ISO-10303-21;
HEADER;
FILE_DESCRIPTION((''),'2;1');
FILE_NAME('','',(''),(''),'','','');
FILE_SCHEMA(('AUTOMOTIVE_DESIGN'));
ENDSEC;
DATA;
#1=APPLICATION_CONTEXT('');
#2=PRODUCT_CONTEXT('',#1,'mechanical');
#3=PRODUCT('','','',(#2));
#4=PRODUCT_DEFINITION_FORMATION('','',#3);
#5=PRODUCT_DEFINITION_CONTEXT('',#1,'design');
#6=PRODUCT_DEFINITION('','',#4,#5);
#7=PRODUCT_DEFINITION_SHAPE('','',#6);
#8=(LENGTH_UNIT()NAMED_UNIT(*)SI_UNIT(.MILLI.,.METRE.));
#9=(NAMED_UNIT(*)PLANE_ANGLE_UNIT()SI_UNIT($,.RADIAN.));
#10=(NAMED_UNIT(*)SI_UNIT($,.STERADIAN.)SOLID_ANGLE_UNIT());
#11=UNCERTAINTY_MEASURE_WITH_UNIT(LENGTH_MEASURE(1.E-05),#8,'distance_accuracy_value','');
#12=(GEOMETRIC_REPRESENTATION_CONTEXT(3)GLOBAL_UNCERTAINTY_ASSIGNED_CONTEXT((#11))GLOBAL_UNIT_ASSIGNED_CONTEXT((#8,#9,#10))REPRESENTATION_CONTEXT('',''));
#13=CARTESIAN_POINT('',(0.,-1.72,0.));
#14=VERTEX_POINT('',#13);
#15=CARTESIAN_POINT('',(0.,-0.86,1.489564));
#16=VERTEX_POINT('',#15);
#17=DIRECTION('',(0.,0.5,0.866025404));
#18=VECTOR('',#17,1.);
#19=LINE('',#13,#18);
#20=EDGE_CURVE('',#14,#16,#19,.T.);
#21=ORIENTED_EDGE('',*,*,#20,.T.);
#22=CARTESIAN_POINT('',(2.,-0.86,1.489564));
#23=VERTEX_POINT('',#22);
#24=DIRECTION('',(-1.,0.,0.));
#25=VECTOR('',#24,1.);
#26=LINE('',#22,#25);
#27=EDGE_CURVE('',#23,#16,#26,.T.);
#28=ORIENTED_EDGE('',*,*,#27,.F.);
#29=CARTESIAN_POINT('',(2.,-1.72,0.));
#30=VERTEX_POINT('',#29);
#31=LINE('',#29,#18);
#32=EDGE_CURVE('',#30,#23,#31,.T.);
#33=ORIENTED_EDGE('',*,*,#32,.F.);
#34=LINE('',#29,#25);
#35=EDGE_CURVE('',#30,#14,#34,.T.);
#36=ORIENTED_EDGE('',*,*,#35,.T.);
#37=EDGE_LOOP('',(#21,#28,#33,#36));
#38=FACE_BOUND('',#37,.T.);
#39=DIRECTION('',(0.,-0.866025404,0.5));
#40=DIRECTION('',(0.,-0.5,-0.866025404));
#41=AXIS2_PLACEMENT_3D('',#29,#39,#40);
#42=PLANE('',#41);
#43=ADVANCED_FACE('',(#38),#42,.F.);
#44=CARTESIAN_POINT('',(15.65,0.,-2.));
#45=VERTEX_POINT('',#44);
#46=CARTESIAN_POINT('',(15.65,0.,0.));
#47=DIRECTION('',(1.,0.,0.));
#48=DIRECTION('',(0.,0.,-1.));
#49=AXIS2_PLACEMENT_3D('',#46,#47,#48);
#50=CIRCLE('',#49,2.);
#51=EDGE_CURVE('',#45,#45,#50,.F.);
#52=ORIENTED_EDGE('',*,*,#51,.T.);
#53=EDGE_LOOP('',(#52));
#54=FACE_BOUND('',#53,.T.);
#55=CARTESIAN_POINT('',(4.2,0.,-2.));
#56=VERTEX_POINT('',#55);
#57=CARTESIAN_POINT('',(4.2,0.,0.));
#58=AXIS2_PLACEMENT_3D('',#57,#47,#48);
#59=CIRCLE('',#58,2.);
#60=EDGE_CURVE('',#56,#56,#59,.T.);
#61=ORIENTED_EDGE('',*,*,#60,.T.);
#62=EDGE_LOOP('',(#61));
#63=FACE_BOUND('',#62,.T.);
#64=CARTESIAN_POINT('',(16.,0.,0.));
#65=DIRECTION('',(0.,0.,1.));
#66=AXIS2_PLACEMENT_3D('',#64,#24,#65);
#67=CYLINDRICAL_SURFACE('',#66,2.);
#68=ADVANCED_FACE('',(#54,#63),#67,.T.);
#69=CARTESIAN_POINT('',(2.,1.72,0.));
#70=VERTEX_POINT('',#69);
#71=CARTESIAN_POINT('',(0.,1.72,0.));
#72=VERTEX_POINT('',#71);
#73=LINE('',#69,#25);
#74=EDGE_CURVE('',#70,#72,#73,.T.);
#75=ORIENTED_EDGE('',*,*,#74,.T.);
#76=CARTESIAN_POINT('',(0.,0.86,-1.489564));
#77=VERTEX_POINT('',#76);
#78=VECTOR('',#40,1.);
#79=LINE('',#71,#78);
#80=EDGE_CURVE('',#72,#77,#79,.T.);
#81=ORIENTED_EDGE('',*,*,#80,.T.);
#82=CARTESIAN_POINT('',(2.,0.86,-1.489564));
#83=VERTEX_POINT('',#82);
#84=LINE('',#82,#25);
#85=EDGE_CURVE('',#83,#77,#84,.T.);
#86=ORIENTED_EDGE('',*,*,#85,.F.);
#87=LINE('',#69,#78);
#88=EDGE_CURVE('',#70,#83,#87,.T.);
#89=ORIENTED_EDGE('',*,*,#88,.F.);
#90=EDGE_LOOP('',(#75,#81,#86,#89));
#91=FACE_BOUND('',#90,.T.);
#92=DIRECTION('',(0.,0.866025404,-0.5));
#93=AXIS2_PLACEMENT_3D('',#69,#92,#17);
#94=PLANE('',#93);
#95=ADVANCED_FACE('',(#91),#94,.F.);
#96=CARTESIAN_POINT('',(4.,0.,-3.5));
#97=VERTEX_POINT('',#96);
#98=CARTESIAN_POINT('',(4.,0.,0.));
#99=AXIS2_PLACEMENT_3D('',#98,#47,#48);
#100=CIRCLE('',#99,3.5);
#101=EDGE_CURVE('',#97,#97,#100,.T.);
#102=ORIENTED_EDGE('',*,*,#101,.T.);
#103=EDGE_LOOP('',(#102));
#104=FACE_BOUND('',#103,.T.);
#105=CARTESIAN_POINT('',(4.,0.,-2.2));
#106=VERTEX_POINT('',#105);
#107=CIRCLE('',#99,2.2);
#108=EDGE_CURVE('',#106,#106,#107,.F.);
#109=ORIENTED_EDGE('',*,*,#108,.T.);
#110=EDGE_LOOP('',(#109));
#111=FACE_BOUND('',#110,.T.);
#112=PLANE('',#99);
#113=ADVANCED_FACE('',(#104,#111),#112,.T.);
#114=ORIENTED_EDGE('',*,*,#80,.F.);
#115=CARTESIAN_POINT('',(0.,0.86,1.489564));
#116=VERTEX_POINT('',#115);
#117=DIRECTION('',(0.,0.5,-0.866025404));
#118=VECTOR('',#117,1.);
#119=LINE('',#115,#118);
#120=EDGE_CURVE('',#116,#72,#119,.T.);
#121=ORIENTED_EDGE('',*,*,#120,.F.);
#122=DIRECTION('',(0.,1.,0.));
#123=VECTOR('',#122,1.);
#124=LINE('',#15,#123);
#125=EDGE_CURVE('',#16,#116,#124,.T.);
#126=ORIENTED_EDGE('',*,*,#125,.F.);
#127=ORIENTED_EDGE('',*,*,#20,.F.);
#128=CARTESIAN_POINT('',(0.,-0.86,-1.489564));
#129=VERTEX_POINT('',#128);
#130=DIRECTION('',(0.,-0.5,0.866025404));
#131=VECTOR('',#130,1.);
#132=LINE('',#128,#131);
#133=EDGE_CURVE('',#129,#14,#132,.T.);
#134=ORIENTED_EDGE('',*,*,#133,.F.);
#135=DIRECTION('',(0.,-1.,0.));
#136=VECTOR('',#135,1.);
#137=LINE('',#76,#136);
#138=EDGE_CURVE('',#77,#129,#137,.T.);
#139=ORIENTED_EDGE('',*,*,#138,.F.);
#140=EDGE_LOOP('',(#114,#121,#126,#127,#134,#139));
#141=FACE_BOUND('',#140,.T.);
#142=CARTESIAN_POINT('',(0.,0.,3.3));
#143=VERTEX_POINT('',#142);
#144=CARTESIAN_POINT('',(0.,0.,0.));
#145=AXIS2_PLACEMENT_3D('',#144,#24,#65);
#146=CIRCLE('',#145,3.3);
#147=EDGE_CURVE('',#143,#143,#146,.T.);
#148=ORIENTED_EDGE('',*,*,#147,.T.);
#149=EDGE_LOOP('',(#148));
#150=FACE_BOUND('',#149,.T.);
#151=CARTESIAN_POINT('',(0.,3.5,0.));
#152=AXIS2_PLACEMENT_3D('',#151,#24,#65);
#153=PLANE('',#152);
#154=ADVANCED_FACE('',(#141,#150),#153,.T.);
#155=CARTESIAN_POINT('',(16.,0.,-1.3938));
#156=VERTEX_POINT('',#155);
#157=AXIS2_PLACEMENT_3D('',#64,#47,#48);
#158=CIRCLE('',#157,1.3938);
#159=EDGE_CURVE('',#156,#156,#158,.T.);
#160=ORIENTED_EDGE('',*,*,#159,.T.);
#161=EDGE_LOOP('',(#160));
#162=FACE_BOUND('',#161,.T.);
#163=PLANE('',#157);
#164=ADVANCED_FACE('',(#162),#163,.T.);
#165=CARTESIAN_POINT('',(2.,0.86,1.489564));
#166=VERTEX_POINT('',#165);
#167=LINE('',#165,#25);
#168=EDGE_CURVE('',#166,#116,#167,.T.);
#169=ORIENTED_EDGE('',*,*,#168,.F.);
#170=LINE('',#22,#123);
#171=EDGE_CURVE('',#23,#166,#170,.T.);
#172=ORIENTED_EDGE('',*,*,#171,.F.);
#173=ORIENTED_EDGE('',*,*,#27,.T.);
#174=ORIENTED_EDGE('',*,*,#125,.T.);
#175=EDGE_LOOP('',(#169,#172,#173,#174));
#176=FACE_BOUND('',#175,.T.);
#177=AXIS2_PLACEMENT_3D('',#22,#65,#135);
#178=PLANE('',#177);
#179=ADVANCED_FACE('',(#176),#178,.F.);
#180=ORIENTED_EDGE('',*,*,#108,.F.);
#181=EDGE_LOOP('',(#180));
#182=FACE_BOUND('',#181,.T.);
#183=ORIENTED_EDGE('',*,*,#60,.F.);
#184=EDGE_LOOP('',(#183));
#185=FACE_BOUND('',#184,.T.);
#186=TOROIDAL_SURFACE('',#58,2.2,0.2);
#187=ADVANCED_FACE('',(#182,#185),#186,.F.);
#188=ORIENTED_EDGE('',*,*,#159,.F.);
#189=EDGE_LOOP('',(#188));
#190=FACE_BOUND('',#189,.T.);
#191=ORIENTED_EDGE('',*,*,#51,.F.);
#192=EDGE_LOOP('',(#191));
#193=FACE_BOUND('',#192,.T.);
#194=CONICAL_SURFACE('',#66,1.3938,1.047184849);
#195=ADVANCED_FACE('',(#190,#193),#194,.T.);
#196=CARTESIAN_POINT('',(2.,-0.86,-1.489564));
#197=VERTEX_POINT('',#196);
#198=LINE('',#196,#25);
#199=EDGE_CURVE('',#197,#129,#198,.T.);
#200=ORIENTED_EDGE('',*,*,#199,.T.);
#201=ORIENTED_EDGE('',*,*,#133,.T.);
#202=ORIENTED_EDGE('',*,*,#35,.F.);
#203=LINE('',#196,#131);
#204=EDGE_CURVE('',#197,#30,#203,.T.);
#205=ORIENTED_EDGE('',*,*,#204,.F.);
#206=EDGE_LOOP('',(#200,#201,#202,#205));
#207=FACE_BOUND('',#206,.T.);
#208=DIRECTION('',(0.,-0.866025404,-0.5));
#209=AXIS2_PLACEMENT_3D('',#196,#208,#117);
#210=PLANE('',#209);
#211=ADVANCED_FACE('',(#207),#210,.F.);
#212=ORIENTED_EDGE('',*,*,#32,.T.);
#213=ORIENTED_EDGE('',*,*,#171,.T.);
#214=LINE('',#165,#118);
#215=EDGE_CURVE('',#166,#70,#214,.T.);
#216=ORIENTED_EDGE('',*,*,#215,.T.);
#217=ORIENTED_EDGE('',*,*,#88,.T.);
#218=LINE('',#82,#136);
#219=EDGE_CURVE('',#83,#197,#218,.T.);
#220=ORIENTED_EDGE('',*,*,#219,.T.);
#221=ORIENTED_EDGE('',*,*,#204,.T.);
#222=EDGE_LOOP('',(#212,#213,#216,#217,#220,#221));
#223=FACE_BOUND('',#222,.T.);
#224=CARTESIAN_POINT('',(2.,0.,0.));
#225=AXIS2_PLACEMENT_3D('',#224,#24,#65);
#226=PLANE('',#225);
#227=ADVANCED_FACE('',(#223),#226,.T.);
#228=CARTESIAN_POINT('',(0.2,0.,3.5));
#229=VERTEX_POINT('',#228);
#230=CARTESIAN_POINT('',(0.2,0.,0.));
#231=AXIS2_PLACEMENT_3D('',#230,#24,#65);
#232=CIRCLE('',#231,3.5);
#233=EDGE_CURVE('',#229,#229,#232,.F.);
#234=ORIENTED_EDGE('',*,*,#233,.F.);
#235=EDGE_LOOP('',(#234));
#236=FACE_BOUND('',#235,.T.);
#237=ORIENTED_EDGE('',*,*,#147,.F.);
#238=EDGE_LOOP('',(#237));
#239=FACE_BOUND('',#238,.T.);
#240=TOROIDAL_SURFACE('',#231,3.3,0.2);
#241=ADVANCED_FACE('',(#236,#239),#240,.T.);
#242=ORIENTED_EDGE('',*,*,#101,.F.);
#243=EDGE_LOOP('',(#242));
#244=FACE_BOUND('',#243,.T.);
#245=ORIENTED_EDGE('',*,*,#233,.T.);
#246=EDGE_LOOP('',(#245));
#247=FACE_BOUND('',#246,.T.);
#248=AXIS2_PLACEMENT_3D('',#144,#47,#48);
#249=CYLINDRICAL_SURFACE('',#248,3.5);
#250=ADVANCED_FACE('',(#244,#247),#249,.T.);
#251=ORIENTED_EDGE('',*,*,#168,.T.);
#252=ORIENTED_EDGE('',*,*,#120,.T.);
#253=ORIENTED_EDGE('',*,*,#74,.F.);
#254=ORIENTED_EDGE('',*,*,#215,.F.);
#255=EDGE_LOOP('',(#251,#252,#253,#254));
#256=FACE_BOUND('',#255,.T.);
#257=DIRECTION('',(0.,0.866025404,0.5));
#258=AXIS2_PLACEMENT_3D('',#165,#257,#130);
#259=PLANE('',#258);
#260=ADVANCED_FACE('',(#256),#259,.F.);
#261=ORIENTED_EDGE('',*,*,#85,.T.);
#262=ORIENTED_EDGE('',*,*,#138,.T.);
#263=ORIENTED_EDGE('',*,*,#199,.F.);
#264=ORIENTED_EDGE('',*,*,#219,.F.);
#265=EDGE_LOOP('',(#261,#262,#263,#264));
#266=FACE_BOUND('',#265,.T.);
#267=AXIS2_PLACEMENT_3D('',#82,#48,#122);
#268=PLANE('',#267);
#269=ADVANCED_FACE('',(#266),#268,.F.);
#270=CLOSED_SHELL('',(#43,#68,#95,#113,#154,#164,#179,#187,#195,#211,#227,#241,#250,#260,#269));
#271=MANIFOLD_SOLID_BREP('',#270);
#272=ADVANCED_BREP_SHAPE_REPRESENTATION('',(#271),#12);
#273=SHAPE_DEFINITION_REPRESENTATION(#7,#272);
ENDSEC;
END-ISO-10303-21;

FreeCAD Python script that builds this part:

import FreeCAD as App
import Part
import Sketcher
from FreeCAD import Vector
Q = App.Units.Quantity


def edges_at(feature, points):
    """Names of the edges that pass closest to the given points."""
    edges = feature.Shape.Edges
    near = lambda p: min(range(len(edges)), key=lambda i: edges[i].distToShape(Part.Vertex(*p))[0])
    return sorted({f"Edge{near(p) + 1}" for p in points})

doc = App.newDocument("Part")
body = doc.addObject("PartDesign::Body", "Body")

# Sketch on XY plane
sketch1 = body.newObject("Sketcher::SketchObject", "Sketch")
sketch1.AttachmentSupport = (doc.getObject("XY_Plane"), [""])
sketch1.MapMode = "FlatFace"
sketch1.addGeometry(Part.LineSegment(Vector(0, 3.5, 0), Vector(0, 0, 0)), False)
sketch1.addGeometry(Part.LineSegment(Vector(0, 0, 0), Vector(4, 0, 0)), False)
sketch1.addGeometry(Part.LineSegment(Vector(4, 0, 0), Vector(4, 3.5, 0)), False)
sketch1.addGeometry(Part.LineSegment(Vector(4, 3.5, 0), Vector(0, 3.5, 0)), False)
sketch1.addConstraint(Sketcher.Constraint("Coincident", 0, 2, 1, 1))
sketch1.addConstraint(Sketcher.Constraint("Coincident", 1, 2, 2, 1))
sketch1.addConstraint(Sketcher.Constraint("Coincident", 2, 2, 3, 1))
sketch1.addConstraint(Sketcher.Constraint("Coincident", 3, 2, 0, 1))
sketch1.addConstraint(Sketcher.Constraint("Vertical", 0))
sketch1.addConstraint(Sketcher.Constraint("Horizontal", 1))
sketch1.addConstraint(Sketcher.Constraint("Vertical", 2))
sketch1.addConstraint(Sketcher.Constraint("Horizontal", 3))
sketch1.addConstraint(Sketcher.Constraint("Coincident", 0, 2, -1, 1))
sketch1.addConstraint(Sketcher.Constraint("DistanceX", 1, 1, 1, 2, Q("4 mm")))
sketch1.addConstraint(Sketcher.Constraint("DistanceY", 0, 2, 0, 1, Q("3.5 mm")))
revolution = body.newObject("PartDesign::Revolution", "Revolution")
revolution.Profile = sketch1
revolution.ReferenceAxis = (sketch1, ["H_Axis"])
revolution.Angle = 360

# Sketch on YZ plane
sketch2 = body.newObject("Sketcher::SketchObject", "Sketch001")
sketch2.AttachmentSupport = (doc.getObject("YZ_Plane"), [""])
sketch2.MapMode = "FlatFace"
sketch2.AttachmentOffset = App.Placement(Vector(0, 0, 4), App.Rotation())
sketch2.addGeometry(Part.Circle(Vector(0, 0, 0), Vector(0, 0, 1), 2), False)
sketch2.addConstraint(Sketcher.Constraint("Coincident", 0, 3, -1, 1))
sketch2.addConstraint(Sketcher.Constraint("Diameter", 0, Q("4 mm")))
pad1 = body.newObject("PartDesign::Pad", "Pad")
pad1.Profile = sketch2
pad1.Length = 12

# Sketch on YZ plane
sketch3 = body.newObject("Sketcher::SketchObject", "Sketch002")
sketch3.AttachmentSupport = (doc.getObject("YZ_Plane"), [""])
sketch3.MapMode = "FlatFace"
sketch3.addGeometry(Part.LineSegment(Vector(1.72, 0, 0), Vector(0.86, -1.489564, 0)), False)
sketch3.addGeometry(Part.LineSegment(Vector(0.86, -1.489564, 0), Vector(-0.86, -1.489564, 0)), False)
sketch3.addGeometry(Part.LineSegment(Vector(-0.86, -1.489564, 0), Vector(-1.72, 0, 0)), False)
sketch3.addGeometry(Part.LineSegment(Vector(-1.72, 0, 0), Vector(-0.86, 1.489564, 0)), False)
sketch3.addGeometry(Part.LineSegment(Vector(-0.86, 1.489564, 0), Vector(0.86, 1.489564, 0)), False)
sketch3.addGeometry(Part.LineSegment(Vector(0.86, 1.489564, 0), Vector(1.72, 0, 0)), False)
sketch3.addConstraint(Sketcher.Constraint("Coincident", 0, 2, 1, 1))
sketch3.addConstraint(Sketcher.Constraint("Coincident", 1, 2, 2, 1))
sketch3.addConstraint(Sketcher.Constraint("Coincident", 2, 2, 3, 1))
sketch3.addConstraint(Sketcher.Constraint("Coincident", 3, 2, 4, 1))
sketch3.addConstraint(Sketcher.Constraint("Coincident", 4, 2, 5, 1))
sketch3.addConstraint(Sketcher.Constraint("Coincident", 5, 2, 0, 1))
sketch3.addConstraint(Sketcher.Constraint("Horizontal", 1))
sketch3.addConstraint(Sketcher.Constraint("Horizontal", 4))
sketch3.addConstraint(Sketcher.Constraint("Symmetric", 0, 2, 3, 2, -1, 1))
sketch3.addConstraint(Sketcher.Constraint("Symmetric", 2, 2, 5, 2, -1, 1))
sketch3.addConstraint(Sketcher.Constraint("PointOnObject", 2, 2, -1))
sketch3.addConstraint(Sketcher.Constraint("Parallel", 2, 5))
sketch3.addConstraint(Sketcher.Constraint("Vertical", 1, 2, 3, 2))
sketch3.addConstraint(Sketcher.Constraint("Angle", 0, Q("-120 deg")))
sketch3.addConstraint(Sketcher.Constraint("DistanceX", 1, 2, 1, 1, Q("1.72 mm")))
sketch3.addConstraint(Sketcher.Constraint("Distance", 0, Q("1.72 mm")))
pocket1 = body.newObject("PartDesign::Pocket", "Pocket")
pocket1.Profile = sketch3
pocket1.Length = 2
pocket1.Reversed = True
doc.recompute()

chamfer = body.newObject("PartDesign::Chamfer", "Chamfer")
chamfer.Base = (pocket1, edges_at(pocket1, [(16, 0, 2)]))
chamfer.ChamferType = "Two distances"
chamfer.Size = 0.6062
chamfer.Size2 = 0.35
chamfer.FlipDirection = True
doc.recompute()

fillet = body.newObject("PartDesign::Fillet", "Fillet")
fillet.Base = (chamfer, edges_at(chamfer, [(0, -3.5, 0), (4, 0, 2)]))
fillet.Radius = 0.2

doc.recompute()
